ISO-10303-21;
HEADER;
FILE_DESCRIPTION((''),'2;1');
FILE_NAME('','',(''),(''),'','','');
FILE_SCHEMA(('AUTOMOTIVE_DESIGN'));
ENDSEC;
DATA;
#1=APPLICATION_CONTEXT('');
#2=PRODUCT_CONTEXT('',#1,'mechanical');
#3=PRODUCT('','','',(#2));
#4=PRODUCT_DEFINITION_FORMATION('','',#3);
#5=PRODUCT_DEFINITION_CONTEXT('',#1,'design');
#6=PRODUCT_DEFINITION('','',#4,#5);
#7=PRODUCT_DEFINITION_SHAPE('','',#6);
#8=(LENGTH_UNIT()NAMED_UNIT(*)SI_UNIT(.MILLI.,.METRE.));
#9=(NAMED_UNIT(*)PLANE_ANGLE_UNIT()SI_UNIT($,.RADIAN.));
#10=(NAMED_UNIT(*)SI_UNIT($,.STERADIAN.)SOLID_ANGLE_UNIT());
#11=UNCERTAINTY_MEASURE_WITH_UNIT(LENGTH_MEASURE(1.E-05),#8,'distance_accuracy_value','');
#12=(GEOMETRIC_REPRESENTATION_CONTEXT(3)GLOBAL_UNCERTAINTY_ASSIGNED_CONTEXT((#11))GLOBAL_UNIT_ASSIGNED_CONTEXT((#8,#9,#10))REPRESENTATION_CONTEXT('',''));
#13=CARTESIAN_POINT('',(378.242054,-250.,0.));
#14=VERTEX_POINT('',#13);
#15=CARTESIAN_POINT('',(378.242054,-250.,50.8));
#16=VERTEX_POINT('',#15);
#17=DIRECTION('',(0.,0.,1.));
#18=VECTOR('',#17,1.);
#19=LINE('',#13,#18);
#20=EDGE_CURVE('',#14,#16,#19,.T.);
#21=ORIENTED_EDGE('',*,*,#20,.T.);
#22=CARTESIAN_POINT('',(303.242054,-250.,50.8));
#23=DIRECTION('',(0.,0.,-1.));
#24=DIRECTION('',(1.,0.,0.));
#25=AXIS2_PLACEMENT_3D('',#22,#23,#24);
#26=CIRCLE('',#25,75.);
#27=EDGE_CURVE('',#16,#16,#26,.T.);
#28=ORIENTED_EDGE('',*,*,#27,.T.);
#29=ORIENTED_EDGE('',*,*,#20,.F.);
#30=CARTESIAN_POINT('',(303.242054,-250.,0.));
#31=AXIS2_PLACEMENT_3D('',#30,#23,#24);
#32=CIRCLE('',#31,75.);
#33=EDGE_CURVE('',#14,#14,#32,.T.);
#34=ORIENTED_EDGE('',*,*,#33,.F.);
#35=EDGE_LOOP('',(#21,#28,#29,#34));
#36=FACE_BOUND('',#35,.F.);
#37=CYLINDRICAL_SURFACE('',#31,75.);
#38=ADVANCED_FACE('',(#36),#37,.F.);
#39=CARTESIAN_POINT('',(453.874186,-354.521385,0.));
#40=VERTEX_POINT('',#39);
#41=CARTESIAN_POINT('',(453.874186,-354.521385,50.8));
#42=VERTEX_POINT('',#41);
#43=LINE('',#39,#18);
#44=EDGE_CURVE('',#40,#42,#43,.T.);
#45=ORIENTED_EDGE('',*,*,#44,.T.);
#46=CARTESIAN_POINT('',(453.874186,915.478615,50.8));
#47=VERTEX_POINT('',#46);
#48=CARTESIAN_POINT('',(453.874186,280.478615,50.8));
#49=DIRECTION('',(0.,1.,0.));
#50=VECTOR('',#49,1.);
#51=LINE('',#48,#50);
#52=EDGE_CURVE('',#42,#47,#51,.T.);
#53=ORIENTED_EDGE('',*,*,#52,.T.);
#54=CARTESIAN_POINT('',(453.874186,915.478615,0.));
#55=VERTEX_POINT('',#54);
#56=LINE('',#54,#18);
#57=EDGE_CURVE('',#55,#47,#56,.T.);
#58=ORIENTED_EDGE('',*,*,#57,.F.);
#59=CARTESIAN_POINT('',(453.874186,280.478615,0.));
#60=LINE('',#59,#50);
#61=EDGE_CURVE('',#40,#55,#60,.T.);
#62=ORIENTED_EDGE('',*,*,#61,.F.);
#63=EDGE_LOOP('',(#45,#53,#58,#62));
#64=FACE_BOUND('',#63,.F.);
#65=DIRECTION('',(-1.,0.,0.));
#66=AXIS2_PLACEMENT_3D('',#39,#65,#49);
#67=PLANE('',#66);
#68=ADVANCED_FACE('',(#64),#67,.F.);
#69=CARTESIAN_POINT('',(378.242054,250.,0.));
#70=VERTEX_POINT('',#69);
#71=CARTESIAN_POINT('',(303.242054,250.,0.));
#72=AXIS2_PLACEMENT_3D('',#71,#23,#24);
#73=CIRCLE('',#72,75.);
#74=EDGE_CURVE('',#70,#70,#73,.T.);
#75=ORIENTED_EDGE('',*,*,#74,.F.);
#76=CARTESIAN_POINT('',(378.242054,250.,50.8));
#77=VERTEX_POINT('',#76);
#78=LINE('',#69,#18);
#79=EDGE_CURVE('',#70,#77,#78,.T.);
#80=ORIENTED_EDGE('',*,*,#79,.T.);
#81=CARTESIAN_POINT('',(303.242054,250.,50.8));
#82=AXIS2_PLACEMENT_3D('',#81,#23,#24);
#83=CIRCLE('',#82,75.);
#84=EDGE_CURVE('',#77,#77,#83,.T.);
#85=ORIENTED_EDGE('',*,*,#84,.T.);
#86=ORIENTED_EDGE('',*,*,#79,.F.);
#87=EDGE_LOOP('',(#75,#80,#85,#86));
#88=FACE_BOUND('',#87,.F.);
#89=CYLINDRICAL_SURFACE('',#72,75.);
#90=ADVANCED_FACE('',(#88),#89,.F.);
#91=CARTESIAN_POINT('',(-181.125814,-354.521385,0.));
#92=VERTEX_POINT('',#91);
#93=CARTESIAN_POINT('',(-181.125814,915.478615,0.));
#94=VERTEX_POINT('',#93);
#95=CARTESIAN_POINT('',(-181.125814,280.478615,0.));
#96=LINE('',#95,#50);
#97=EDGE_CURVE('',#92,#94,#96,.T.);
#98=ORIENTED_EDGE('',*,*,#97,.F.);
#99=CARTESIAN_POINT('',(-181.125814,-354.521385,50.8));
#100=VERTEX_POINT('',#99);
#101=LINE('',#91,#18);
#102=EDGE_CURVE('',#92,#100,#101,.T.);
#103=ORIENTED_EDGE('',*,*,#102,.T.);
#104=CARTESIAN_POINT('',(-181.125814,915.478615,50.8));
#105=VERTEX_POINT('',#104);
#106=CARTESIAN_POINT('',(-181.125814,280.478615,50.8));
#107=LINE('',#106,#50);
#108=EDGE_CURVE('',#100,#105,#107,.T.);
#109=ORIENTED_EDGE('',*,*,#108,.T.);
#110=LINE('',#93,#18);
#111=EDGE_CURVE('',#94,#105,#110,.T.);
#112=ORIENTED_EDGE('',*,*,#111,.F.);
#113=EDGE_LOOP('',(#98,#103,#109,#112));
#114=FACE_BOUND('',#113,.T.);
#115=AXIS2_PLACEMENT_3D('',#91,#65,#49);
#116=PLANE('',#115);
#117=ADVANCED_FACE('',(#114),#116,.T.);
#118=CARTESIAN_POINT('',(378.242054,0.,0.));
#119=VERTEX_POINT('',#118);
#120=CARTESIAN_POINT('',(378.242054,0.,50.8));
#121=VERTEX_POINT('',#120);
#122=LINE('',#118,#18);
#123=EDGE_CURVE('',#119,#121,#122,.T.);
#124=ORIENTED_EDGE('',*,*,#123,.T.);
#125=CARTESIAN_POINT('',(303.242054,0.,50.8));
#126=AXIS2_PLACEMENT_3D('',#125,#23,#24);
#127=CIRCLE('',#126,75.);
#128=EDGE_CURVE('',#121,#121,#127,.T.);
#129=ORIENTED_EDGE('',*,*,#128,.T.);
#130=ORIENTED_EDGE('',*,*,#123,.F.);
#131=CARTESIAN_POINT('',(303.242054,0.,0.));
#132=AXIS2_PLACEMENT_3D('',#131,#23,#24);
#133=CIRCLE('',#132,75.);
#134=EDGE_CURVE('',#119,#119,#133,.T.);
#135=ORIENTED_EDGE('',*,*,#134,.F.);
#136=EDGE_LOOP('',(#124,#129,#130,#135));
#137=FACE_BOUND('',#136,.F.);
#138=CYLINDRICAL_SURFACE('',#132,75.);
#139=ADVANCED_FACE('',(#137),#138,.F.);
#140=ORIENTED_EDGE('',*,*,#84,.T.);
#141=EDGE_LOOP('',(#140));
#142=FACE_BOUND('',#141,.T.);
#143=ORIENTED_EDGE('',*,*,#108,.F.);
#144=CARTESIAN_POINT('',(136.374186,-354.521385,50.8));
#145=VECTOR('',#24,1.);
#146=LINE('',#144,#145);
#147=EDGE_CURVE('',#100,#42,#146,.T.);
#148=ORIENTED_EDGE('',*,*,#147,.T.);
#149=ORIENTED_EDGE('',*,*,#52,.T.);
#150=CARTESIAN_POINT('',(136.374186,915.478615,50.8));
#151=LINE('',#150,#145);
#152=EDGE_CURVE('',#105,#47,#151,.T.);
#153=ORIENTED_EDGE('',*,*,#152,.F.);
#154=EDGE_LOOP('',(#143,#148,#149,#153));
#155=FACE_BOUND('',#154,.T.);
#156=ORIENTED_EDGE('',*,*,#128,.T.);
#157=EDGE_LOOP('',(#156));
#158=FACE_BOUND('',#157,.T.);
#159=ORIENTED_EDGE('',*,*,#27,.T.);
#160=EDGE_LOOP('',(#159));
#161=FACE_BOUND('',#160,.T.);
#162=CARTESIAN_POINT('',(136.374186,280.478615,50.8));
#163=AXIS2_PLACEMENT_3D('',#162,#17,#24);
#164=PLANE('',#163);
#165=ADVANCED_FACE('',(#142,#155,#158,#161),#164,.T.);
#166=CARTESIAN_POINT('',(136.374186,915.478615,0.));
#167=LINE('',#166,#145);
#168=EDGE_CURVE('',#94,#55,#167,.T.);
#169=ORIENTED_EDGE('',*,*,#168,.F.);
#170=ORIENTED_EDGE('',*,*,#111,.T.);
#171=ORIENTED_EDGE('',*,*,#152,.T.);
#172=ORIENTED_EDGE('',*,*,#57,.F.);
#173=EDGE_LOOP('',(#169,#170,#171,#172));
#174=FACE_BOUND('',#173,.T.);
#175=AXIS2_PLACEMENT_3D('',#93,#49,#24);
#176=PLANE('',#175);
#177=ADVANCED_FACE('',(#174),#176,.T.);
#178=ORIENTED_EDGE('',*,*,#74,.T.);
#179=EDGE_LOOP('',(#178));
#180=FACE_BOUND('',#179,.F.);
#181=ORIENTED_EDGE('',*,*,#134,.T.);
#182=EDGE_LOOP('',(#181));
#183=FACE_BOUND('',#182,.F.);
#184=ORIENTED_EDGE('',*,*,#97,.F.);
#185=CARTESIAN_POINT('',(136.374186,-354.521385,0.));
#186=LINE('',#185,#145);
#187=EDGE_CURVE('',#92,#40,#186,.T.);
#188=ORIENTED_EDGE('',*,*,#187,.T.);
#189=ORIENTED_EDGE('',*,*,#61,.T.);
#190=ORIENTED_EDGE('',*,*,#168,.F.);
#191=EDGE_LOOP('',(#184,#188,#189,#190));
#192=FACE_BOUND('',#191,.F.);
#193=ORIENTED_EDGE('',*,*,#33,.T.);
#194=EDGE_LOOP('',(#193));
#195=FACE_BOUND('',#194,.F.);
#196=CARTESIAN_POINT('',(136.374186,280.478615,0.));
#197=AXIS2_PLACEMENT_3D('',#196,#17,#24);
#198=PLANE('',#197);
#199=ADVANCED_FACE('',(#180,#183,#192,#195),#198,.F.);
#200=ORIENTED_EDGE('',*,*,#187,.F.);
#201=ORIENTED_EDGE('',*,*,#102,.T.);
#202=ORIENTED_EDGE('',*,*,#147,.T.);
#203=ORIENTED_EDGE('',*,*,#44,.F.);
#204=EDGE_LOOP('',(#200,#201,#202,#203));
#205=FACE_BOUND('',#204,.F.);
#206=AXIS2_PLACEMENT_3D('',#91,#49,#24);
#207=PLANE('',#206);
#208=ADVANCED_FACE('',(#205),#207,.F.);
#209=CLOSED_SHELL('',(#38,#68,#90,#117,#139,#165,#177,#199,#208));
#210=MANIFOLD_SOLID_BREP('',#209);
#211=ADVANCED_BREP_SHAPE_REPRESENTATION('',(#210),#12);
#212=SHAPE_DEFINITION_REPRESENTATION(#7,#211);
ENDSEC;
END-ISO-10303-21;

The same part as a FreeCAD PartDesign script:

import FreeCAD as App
import Part
import Sketcher

V = App.Vector
Q = App.Units.Quantity


def add_polygon(sketch, points):
    """Adds a closed chain of lines whose ends are joined by coincident constraints."""
    first, n = sketch.GeometryCount, len(points)
    for a, b in zip(points, points[1:] + points[:1]):
        sketch.addGeometry(Part.LineSegment(App.Vector(*a, 0), App.Vector(*b, 0)), False)
    for i in range(n):
        sketch.addConstraint(Sketcher.Constraint("Coincident", first + i, 2, first + (i + 1) % n, 1))

doc = App.newDocument("Part")
body = doc.addObject("PartDesign::Body", "Body")

sketch1 = body.newObject("Sketcher::SketchObject", "Sketch")
sketch1.AttachmentSupport = (doc.getObject("XY_Plane"), [""])
sketch1.MapMode = "FlatFace"
add_polygon(sketch1, [(-181, 915), (-181, -355), (454, -355), (454, 915)])
sketch1.addConstraint([
    Sketcher.Constraint("Vertical", 0),
    Sketcher.Constraint("Horizontal", 1),
    Sketcher.Constraint("Vertical", 2),
    Sketcher.Constraint("Horizontal", 3),
    Sketcher.Constraint("DistanceX", 1, 1, 1, 2, Q("25 in")),
    Sketcher.Constraint("DistanceY", 0, 2, 0, 1, Q("50 in")),
    Sketcher.Constraint("DistanceX", 0, 2, -1, 1, 181.125814),
    Sketcher.Constraint("DistanceY", 0, 2, -1, 1, 354.521385),
])
pad1 = body.newObject("PartDesign::Pad", "Pad")
pad1.Profile = sketch1
pad1.Length = Q("2 in")

sketch2 = body.newObject("Sketcher::SketchObject", "Sketch001")
sketch2.AttachmentSupport = (doc.getObject("XY_Plane"), [""])
sketch2.MapMode = "FlatFace"
sketch2.addGeometry([
    Part.Circle(V(303, -250, 0), V(0, 0, 1), 75),
    Part.Circle(V(303, 0, 0), V(0, 0, 1), 75),
    Part.Circle(V(303, 250, 0), V(0, 0, 1), 75),
], False)
sketch2.addConstraint([
    Sketcher.Constraint("Equal", 0, 1),
    Sketcher.Constraint("Equal", 1, 2),
    Sketcher.Constraint("Symmetric", 0, 3, 2, 3, -1),
    Sketcher.Constraint("PointOnObject", 1, 3, -1),
    Sketcher.Constraint("Vertical", 0, 3, 1, 3),
    Sketcher.Constraint("Diameter", 0, 150.0),
    Sketcher.Constraint("DistanceY", 0, 3, -1, 1, 250.0),
    Sketcher.Constraint("DistanceX", -1, 1, 0, 3, 303.242054),
])
pocket1 = body.newObject("PartDesign::Pocket", "Pocket")
pocket1.Profile = sketch2
pocket1.Length = 347
pocket1.Reversed = True

doc.recompute()
